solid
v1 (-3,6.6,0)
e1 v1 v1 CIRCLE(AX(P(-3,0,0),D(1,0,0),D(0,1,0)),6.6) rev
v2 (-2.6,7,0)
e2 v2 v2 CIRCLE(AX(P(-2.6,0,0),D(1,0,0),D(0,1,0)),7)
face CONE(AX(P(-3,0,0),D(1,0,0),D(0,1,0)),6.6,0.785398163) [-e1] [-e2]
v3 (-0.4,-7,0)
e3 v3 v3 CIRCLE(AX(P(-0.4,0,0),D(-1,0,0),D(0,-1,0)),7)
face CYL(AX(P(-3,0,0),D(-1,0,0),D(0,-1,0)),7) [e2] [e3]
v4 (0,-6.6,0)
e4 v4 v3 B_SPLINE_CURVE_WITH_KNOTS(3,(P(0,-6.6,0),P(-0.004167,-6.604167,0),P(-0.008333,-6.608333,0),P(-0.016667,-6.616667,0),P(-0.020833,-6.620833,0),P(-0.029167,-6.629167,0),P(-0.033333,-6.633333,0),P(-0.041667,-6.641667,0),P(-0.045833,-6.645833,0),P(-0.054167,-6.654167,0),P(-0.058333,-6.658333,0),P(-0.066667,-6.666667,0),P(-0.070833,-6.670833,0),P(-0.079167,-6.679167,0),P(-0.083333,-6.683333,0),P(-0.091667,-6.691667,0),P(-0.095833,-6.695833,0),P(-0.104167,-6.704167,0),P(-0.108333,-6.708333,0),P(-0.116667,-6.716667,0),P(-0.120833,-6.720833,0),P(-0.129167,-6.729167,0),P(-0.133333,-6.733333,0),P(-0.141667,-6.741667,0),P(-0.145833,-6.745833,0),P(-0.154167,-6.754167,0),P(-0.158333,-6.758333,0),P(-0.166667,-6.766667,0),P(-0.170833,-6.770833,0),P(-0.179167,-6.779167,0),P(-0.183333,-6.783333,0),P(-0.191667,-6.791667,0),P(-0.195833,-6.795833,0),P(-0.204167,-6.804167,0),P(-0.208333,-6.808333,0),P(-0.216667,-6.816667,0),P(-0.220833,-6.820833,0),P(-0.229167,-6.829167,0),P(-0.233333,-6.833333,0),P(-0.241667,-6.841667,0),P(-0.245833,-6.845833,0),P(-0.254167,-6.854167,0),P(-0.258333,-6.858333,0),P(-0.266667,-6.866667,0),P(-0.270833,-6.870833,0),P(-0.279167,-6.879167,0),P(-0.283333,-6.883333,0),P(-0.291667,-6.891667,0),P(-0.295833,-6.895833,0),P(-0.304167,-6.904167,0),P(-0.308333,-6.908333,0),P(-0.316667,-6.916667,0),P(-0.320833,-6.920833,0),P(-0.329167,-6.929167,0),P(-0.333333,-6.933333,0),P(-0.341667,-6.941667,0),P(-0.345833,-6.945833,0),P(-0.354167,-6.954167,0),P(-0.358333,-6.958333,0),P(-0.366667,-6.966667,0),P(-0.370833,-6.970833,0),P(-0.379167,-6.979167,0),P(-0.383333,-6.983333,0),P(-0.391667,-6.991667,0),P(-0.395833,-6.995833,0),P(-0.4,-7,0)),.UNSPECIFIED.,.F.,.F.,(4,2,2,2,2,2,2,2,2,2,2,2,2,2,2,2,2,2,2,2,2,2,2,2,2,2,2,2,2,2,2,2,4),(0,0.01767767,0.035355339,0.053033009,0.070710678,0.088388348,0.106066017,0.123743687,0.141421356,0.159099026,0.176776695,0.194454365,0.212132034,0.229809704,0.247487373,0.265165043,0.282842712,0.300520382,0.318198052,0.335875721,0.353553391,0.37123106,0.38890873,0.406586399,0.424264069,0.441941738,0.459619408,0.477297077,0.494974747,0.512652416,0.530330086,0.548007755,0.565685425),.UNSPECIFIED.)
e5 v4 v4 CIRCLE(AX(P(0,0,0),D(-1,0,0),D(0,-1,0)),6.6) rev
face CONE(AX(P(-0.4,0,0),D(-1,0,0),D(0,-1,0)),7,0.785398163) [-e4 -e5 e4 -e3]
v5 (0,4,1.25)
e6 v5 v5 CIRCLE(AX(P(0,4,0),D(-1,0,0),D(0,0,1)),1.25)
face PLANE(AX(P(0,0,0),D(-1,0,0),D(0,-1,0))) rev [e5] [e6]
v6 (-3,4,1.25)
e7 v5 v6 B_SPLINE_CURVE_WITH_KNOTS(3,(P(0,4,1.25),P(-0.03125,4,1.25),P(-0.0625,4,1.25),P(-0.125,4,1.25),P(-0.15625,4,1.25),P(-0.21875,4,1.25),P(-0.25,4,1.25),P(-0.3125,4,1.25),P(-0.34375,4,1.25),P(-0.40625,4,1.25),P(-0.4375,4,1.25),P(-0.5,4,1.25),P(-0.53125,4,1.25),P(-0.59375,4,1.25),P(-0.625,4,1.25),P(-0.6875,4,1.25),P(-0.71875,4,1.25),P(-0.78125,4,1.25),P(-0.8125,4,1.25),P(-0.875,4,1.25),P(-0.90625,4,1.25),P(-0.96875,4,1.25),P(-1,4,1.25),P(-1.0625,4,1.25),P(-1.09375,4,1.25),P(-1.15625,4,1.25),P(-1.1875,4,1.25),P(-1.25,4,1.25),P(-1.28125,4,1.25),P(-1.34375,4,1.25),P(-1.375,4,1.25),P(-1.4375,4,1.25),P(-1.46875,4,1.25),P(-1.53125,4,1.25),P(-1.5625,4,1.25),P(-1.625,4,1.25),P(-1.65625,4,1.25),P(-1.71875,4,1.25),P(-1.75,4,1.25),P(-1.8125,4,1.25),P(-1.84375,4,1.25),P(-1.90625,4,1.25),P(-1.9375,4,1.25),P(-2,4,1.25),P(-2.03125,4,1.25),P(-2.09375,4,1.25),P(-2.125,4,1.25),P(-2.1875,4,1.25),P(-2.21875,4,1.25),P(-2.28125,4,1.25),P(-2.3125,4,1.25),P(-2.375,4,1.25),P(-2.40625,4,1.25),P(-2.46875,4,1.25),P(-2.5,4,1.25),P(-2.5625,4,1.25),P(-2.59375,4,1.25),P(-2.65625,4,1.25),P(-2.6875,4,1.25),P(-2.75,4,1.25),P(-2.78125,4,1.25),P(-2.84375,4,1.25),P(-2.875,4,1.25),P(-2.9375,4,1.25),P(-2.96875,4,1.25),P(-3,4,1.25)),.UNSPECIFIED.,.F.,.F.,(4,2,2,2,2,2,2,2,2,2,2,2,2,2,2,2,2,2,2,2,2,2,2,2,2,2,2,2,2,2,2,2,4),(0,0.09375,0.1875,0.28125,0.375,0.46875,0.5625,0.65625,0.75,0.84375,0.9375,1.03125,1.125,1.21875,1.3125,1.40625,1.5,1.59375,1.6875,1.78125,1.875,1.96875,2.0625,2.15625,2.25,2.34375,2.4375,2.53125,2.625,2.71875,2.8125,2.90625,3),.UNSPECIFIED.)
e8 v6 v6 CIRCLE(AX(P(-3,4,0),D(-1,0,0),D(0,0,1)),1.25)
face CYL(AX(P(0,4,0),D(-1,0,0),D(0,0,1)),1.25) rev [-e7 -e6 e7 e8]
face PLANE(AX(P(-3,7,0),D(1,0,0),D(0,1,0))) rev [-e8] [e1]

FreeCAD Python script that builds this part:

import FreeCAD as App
import Part
import Sketcher

V = App.Vector


def edges_at(feature, points):
    """Names of the edges that pass closest to the given points."""
    edges = feature.Shape.Edges
    near = lambda p: min(range(len(edges)), key=lambda i: edges[i].distToShape(Part.Vertex(*p))[0])
    return sorted({f"Edge{near(p) + 1}" for p in points})


def add_polygon(sketch, points):
    """Adds a closed chain of lines whose ends are joined by coincident constraints."""
    first, n = sketch.GeometryCount, len(points)
    for a, b in zip(points, points[1:] + points[:1]):
        sketch.addGeometry(Part.LineSegment(App.Vector(*a, 0), App.Vector(*b, 0)), False)
    for i in range(n):
        sketch.addConstraint(Sketcher.Constraint("Coincident", first + i, 2, first + (i + 1) % n, 1))

doc = App.newDocument("Part")
body = doc.addObject("PartDesign::Body", "Body")

# Sketch on XY plane
sketch1 = doc.addObject("Sketcher::SketchObject", "Sketch")
body.addObject(sketch1)
sketch1.AttachmentSupport = (doc.XY_Plane, [""])
sketch1.MapMode = "FlatFace"
add_polygon(sketch1, [(-3, 7), (-3, 0), (0, 0), (0, 7)])  # lines 0-3
sketch1.addConstraint([
    Sketcher.Constraint("Vertical", 0),
    Sketcher.Constraint("Horizontal", 1),
    Sketcher.Constraint("Vertical", 2),
    Sketcher.Constraint("Horizontal", 3),
    Sketcher.Constraint("Coincident", 1, 2, -1, 1),
    Sketcher.Constraint("DistanceX", 1, 1, 1, 2, 3.0),
    Sketcher.Constraint("DistanceY", 0, 2, 0, 1, 7.0),
])
revolution = doc.addObject("PartDesign::Revolution", "Revolution")
body.addObject(revolution)
revolution.Profile = sketch1
revolution.ReferenceAxis = (sketch1, ["H_Axis"])
revolution.Angle = 360

# Sketch on YZ plane
sketch2 = doc.addObject("Sketcher::SketchObject", "Sketch001")
body.addObject(sketch2)
sketch2.AttachmentSupport = (doc.YZ_Plane, [""])
sketch2.MapMode = "FlatFace"
sketch2.AttachmentOffset = App.Placement(V(0, 0, -3), App.Rotation())
sketch2.addGeometry(Part.Circle(V(4, 0, 0), V(0, 0, 1), 1.2), False)
sketch2.addConstraint([
    Sketcher.Constraint("PointOnObject", 0, 3, -1),
    Sketcher.Constraint("Diameter", 0, 2.5),
    Sketcher.Constraint("DistanceX", -1, 1, 0, 3, 4.0),
])
pocket1 = doc.addObject("PartDesign::Pocket", "Pocket")
body.addObject(pocket1)
pocket1.Profile = sketch2
pocket1.Type = "ThroughAll"
pocket1.Reversed = True
doc.recompute()

chamfer = doc.addObject("PartDesign::Chamfer", "Chamfer")
body.addObject(chamfer)
chamfer.Base = (pocket1, edges_at(pocket1, [(-3, 7, 0), (0, 7, 0)]))
chamfer.Size = 0.4

doc.recompute()
